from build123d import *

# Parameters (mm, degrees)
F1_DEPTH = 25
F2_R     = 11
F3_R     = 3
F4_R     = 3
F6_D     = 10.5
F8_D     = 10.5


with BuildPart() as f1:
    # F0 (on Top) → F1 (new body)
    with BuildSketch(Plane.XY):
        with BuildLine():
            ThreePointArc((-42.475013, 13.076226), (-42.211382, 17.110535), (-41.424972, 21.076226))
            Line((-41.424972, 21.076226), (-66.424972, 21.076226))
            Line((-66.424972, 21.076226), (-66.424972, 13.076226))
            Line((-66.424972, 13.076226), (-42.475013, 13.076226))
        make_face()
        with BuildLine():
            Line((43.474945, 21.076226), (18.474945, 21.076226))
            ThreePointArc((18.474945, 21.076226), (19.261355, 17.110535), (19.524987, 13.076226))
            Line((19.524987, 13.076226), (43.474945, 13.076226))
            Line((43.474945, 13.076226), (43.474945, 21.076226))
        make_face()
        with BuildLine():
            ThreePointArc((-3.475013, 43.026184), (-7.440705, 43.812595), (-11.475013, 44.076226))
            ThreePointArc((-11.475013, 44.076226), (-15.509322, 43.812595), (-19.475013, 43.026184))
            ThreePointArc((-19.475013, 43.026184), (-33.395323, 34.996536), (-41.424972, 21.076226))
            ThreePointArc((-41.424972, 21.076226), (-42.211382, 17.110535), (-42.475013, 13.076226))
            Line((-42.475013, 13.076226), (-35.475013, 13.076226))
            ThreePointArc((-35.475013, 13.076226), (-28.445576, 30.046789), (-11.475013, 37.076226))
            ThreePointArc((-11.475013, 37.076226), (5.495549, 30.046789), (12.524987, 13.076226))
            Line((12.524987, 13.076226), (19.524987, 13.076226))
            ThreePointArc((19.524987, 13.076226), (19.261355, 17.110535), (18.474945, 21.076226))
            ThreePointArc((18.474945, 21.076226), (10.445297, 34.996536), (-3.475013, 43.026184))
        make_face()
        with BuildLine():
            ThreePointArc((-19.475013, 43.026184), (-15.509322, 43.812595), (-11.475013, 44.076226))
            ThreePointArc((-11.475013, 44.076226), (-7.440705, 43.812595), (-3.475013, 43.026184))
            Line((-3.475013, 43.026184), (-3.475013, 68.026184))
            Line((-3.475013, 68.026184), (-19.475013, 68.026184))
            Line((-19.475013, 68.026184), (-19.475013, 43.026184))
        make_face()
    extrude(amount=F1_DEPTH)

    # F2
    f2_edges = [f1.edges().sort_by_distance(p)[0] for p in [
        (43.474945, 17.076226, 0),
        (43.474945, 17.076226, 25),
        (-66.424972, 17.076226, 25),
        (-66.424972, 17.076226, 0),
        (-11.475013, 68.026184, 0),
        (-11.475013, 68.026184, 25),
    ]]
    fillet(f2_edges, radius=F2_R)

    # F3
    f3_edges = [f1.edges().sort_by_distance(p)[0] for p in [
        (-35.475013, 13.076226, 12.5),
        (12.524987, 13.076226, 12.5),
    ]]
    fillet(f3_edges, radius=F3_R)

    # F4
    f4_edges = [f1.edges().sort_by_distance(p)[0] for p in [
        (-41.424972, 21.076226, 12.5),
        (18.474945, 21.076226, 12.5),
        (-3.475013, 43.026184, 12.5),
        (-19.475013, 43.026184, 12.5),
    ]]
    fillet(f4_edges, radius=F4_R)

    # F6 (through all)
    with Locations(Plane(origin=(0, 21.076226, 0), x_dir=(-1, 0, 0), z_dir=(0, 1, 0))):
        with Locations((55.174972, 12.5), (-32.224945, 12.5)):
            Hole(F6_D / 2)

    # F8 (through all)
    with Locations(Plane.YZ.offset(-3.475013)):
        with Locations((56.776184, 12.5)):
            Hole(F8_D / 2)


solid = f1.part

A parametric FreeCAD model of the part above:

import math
import FreeCAD as App
import Part
import Sketcher

V = App.Vector
Q = App.Units.Quantity


def edges_at(feature, points):
    """Names of the edges that pass closest to the given points."""
    edges = feature.Shape.Edges
    near = lambda p: min(range(len(edges)), key=lambda i: edges[i].distToShape(Part.Vertex(*p))[0])
    return sorted({f"Edge{near(p) + 1}" for p in points})

doc = App.newDocument("Part")
body = doc.addObject("PartDesign::Body", "Body")

sketch1 = doc.addObject("Sketcher::SketchObject", "Sketch")
body.addObject(sketch1)
sketch1.AttachmentSupport = (doc.XY_Plane, [""])
sketch1.MapMode = "FlatFace"
sketch1.addGeometry(Part.LineSegment(V(-41.424972, 21.076226, 0), V(-66.424972, 21.076226, 0)), False)
sketch1.addGeometry(Part.LineSegment(V(-66.424972, 21.076226, 0), V(-66.424972, 13.076226, 0)), False)
sketch1.addGeometry(Part.LineSegment(V(-66.424972, 13.076226, 0), V(-35.475013, 13.076226, 0)), False)
sketch1.addGeometry(Part.ArcOfCircle(Part.Circle(V(-11.475014, 13.076227, 0), V(0, 0, 1), 23.999999), math.radians(89.999998), math.radians(180.000002)), False)
sketch1.addGeometry(Part.ArcOfCircle(Part.Circle(V(-11.475014, 13.076225, 0), V(0, 0, 1), 24.000001), math.radians(0.000002), math.radians(89.999998)), False)
sketch1.addGeometry(Part.LineSegment(V(12.524987, 13.076226, 0), V(43.474945, 13.076226, 0)), False)
sketch1.addGeometry(Part.LineSegment(V(43.474945, 13.076226, 0), V(43.474945, 21.076226, 0)), False)
sketch1.addGeometry(Part.LineSegment(V(43.474945, 21.076226, 0), V(18.474945, 21.076226, 0)), False)
sketch1.addGeometry(Part.ArcOfCircle(Part.Circle(V(-11.475013, 13.076226, 0), V(0, 0, 1), 31), math.radians(14.955249), math.radians(75.044751)), False)
sketch1.addGeometry(Part.LineSegment(V(-3.475013, 43.026184, 0), V(-3.475013, 68.026184, 0)), False)
sketch1.addGeometry(Part.LineSegment(V(-3.475013, 68.026184, 0), V(-19.475013, 68.026184, 0)), False)
sketch1.addGeometry(Part.LineSegment(V(-19.475013, 68.026184, 0), V(-19.475013, 43.026184, 0)), False)
sketch1.addGeometry(Part.ArcOfCircle(Part.Circle(V(-11.475011, 13.076223, 0), V(0, 0, 1), 31.000004), math.radians(104.955251), math.radians(165.044747)), False)
sketch1.addConstraint(Sketcher.Constraint("Coincident", 0, 2, 1, 1))
sketch1.addConstraint(Sketcher.Constraint("Coincident", 1, 2, 2, 1))
sketch1.addConstraint(Sketcher.Constraint("Coincident", 2, 2, 3, 2))
sketch1.addConstraint(Sketcher.Constraint("Tangent", 3, 1, 4, 2))
sketch1.addConstraint(Sketcher.Constraint("Coincident", 4, 1, 5, 1))
sketch1.addConstraint(Sketcher.Constraint("Coincident", 5, 2, 6, 1))
sketch1.addConstraint(Sketcher.Constraint("Coincident", 6, 2, 7, 1))
sketch1.addConstraint(Sketcher.Constraint("Coincident", 7, 2, 8, 1))
sketch1.addConstraint(Sketcher.Constraint("Coincident", 8, 2, 9, 1))
sketch1.addConstraint(Sketcher.Constraint("Coincident", 9, 2, 10, 1))
sketch1.addConstraint(Sketcher.Constraint("Coincident", 10, 2, 11, 1))
sketch1.addConstraint(Sketcher.Constraint("Coincident", 11, 2, 12, 1))
sketch1.addConstraint(Sketcher.Constraint("Coincident", 12, 2, 0, 1))
sketch1.addConstraint(Sketcher.Constraint("Horizontal", 0))
sketch1.addConstraint(Sketcher.Constraint("Vertical", 1))
sketch1.addConstraint(Sketcher.Constraint("Horizontal", 2))
sketch1.addConstraint(Sketcher.Constraint("Horizontal", 5))
sketch1.addConstraint(Sketcher.Constraint("Vertical", 6))
sketch1.addConstraint(Sketcher.Constraint("Horizontal", 7))
sketch1.addConstraint(Sketcher.Constraint("Vertical", 9))
sketch1.addConstraint(Sketcher.Constraint("Horizontal", 10))
sketch1.addConstraint(Sketcher.Constraint("Vertical", 11))
sketch1.addConstraint(Sketcher.Constraint("Coincident", 8, 3, 3, 3))
sketch1.addConstraint(Sketcher.Constraint("Coincident", 12, 3, 3, 3))
sketch1.addConstraint(Sketcher.Constraint("Equal", 3, 4))
sketch1.addConstraint(Sketcher.Constraint("Horizontal", 8, 3, 1, 2))
sketch1.addConstraint(Sketcher.Constraint("Horizontal", 2, 2, 4, 1))
sketch1.addConstraint(Sketcher.Constraint("Horizontal", 0, 2, 6, 2))
sketch1.addConstraint(Sketcher.Constraint("Horizontal", 8, 2, 11, 2))
sketch1.addConstraint(Sketcher.Constraint("Vertical", 8, 3, 3, 1))
sketch1.addConstraint(Sketcher.Constraint("Equal", 2, 5))
sketch1.addConstraint(Sketcher.Constraint("Equal", 0, 7))
sketch1.addConstraint(Sketcher.Constraint("Equal", 7, 9))
sketch1.addConstraint(Sketcher.Constraint("Radius", 3, Q("23.999999 mm")))
sketch1.addConstraint(Sketcher.Constraint("Radius", 8, Q("31 mm")))
sketch1.addConstraint(Sketcher.Constraint("DistanceX", 0, 2, 0, 1, Q("25 mm")))
sketch1.addConstraint(Sketcher.Constraint("DistanceX", 10, 2, 10, 1, Q("16 mm")))
sketch1.addConstraint(Sketcher.Constraint("DistanceY", 1, 2, 1, 1, Q("8 mm")))
sketch1.addConstraint(Sketcher.Constraint("DistanceX", 12, 3, -1, 1, Q("11.475011 mm")))
sketch1.addConstraint(Sketcher.Constraint("DistanceY", -1, 1, 3, 3, Q("13.076227 mm")))
pad1 = doc.addObject("PartDesign::Pad", "Pad")
body.addObject(pad1)
pad1.Profile = sketch1
pad1.Length = 25
doc.recompute()

fillet = doc.addObject("PartDesign::Fillet", "Fillet")
body.addObject(fillet)
fillet.Base = (pad1, edges_at(pad1, [
    (43.475, 17.076, 0),
    (43.475, 17.076, 25),
    (-66.425, 17.076, 25),
    (-66.425, 17.076, 0),
    (-11.475, 68.026, 0),
    (-11.475, 68.026, 25),
]))
fillet.Radius = 11
doc.recompute()

fillet2 = doc.addObject("PartDesign::Fillet", "Fillet001")
body.addObject(fillet2)
fillet2.Base = (fillet, edges_at(fillet, [(-35.475, 13.076, 12.5), (12.525, 13.076, 12.5)]))
fillet2.Radius = 3
doc.recompute()

fillet3 = doc.addObject("PartDesign::Fillet", "Fillet002")
body.addObject(fillet3)
fillet3.Base = (fillet2, edges_at(fillet2, [
    (-41.425, 21.076, 12.5),
    (18.475, 21.076, 12.5),
    (-3.475, 43.026, 12.5),
    (-19.475, 43.026, 12.5),
]))
fillet3.Radius = 3

sketch2 = doc.addObject("Sketcher::SketchObject", "Sketch001")
body.addObject(sketch2)
sketch2.AttachmentSupport = (doc.XZ_Plane, [""])
sketch2.MapMode = "FlatFace"
sketch2.AttachmentOffset = App.Placement(V(0, 0, -21.076226), App.Rotation())
sketch2.addGeometry(Part.Circle(V(-55.174972, 12.5, 0), V(0, 0, 1), 5.25), False)
sketch2.addGeometry(Part.Circle(V(32.224945, 12.5, 0), V(0, 0, 1), 5.25), False)
sketch2.addConstraint(Sketcher.Constraint("Equal", 0, 1))
sketch2.addConstraint(Sketcher.Constraint("Horizontal", 0, 3, 1, 3))
sketch2.addConstraint(Sketcher.Constraint("Diameter", 0, Q("10.5 mm")))
sketch2.addConstraint(Sketcher.Constraint("DistanceY", -1, 1, 0, 3, Q("12.5 mm")))
sketch2.addConstraint(Sketcher.Constraint("DistanceX", 0, 3, -1, 1, Q("55.174972 mm")))
sketch2.addConstraint(Sketcher.Constraint("DistanceX", -1, 1, 1, 3, Q("32.224945 mm")))
doc.recompute()
hole = doc.addObject("PartDesign::Hole", "Hole")
body.addObject(hole)
hole.Profile = sketch2
hole.ThreadType = "None"
hole.Diameter = 10.5
hole.DepthType = "ThroughAll"
hole.Reversed = True

sketch3 = doc.addObject("Sketcher::SketchObject", "Sketch002")
body.addObject(sketch3)
sketch3.AttachmentSupport = (doc.YZ_Plane, [""])
sketch3.MapMode = "FlatFace"
sketch3.AttachmentOffset = App.Placement(V(0, 0, -3.475013), App.Rotation())
sketch3.addGeometry(Part.Circle(V(56.776184, 12.5, 0), V(0, 0, 1), 5.25), False)
sketch3.addConstraint(Sketcher.Constraint("Diameter", 0, Q("10.5 mm")))
sketch3.addConstraint(Sketcher.Constraint("DistanceY", -1, 1, 0, 3, Q("12.5 mm")))
sketch3.addConstraint(Sketcher.Constraint("DistanceX", -1, 1, 0, 3, Q("56.776184 mm")))
doc.recompute()
hole2 = doc.addObject("PartDesign::Hole", "Hole001")
body.addObject(hole2)
hole2.Profile = sketch3
hole2.ThreadType = "None"
hole2.Diameter = 10.5
hole2.DepthType = "ThroughAll"

doc.recompute()
